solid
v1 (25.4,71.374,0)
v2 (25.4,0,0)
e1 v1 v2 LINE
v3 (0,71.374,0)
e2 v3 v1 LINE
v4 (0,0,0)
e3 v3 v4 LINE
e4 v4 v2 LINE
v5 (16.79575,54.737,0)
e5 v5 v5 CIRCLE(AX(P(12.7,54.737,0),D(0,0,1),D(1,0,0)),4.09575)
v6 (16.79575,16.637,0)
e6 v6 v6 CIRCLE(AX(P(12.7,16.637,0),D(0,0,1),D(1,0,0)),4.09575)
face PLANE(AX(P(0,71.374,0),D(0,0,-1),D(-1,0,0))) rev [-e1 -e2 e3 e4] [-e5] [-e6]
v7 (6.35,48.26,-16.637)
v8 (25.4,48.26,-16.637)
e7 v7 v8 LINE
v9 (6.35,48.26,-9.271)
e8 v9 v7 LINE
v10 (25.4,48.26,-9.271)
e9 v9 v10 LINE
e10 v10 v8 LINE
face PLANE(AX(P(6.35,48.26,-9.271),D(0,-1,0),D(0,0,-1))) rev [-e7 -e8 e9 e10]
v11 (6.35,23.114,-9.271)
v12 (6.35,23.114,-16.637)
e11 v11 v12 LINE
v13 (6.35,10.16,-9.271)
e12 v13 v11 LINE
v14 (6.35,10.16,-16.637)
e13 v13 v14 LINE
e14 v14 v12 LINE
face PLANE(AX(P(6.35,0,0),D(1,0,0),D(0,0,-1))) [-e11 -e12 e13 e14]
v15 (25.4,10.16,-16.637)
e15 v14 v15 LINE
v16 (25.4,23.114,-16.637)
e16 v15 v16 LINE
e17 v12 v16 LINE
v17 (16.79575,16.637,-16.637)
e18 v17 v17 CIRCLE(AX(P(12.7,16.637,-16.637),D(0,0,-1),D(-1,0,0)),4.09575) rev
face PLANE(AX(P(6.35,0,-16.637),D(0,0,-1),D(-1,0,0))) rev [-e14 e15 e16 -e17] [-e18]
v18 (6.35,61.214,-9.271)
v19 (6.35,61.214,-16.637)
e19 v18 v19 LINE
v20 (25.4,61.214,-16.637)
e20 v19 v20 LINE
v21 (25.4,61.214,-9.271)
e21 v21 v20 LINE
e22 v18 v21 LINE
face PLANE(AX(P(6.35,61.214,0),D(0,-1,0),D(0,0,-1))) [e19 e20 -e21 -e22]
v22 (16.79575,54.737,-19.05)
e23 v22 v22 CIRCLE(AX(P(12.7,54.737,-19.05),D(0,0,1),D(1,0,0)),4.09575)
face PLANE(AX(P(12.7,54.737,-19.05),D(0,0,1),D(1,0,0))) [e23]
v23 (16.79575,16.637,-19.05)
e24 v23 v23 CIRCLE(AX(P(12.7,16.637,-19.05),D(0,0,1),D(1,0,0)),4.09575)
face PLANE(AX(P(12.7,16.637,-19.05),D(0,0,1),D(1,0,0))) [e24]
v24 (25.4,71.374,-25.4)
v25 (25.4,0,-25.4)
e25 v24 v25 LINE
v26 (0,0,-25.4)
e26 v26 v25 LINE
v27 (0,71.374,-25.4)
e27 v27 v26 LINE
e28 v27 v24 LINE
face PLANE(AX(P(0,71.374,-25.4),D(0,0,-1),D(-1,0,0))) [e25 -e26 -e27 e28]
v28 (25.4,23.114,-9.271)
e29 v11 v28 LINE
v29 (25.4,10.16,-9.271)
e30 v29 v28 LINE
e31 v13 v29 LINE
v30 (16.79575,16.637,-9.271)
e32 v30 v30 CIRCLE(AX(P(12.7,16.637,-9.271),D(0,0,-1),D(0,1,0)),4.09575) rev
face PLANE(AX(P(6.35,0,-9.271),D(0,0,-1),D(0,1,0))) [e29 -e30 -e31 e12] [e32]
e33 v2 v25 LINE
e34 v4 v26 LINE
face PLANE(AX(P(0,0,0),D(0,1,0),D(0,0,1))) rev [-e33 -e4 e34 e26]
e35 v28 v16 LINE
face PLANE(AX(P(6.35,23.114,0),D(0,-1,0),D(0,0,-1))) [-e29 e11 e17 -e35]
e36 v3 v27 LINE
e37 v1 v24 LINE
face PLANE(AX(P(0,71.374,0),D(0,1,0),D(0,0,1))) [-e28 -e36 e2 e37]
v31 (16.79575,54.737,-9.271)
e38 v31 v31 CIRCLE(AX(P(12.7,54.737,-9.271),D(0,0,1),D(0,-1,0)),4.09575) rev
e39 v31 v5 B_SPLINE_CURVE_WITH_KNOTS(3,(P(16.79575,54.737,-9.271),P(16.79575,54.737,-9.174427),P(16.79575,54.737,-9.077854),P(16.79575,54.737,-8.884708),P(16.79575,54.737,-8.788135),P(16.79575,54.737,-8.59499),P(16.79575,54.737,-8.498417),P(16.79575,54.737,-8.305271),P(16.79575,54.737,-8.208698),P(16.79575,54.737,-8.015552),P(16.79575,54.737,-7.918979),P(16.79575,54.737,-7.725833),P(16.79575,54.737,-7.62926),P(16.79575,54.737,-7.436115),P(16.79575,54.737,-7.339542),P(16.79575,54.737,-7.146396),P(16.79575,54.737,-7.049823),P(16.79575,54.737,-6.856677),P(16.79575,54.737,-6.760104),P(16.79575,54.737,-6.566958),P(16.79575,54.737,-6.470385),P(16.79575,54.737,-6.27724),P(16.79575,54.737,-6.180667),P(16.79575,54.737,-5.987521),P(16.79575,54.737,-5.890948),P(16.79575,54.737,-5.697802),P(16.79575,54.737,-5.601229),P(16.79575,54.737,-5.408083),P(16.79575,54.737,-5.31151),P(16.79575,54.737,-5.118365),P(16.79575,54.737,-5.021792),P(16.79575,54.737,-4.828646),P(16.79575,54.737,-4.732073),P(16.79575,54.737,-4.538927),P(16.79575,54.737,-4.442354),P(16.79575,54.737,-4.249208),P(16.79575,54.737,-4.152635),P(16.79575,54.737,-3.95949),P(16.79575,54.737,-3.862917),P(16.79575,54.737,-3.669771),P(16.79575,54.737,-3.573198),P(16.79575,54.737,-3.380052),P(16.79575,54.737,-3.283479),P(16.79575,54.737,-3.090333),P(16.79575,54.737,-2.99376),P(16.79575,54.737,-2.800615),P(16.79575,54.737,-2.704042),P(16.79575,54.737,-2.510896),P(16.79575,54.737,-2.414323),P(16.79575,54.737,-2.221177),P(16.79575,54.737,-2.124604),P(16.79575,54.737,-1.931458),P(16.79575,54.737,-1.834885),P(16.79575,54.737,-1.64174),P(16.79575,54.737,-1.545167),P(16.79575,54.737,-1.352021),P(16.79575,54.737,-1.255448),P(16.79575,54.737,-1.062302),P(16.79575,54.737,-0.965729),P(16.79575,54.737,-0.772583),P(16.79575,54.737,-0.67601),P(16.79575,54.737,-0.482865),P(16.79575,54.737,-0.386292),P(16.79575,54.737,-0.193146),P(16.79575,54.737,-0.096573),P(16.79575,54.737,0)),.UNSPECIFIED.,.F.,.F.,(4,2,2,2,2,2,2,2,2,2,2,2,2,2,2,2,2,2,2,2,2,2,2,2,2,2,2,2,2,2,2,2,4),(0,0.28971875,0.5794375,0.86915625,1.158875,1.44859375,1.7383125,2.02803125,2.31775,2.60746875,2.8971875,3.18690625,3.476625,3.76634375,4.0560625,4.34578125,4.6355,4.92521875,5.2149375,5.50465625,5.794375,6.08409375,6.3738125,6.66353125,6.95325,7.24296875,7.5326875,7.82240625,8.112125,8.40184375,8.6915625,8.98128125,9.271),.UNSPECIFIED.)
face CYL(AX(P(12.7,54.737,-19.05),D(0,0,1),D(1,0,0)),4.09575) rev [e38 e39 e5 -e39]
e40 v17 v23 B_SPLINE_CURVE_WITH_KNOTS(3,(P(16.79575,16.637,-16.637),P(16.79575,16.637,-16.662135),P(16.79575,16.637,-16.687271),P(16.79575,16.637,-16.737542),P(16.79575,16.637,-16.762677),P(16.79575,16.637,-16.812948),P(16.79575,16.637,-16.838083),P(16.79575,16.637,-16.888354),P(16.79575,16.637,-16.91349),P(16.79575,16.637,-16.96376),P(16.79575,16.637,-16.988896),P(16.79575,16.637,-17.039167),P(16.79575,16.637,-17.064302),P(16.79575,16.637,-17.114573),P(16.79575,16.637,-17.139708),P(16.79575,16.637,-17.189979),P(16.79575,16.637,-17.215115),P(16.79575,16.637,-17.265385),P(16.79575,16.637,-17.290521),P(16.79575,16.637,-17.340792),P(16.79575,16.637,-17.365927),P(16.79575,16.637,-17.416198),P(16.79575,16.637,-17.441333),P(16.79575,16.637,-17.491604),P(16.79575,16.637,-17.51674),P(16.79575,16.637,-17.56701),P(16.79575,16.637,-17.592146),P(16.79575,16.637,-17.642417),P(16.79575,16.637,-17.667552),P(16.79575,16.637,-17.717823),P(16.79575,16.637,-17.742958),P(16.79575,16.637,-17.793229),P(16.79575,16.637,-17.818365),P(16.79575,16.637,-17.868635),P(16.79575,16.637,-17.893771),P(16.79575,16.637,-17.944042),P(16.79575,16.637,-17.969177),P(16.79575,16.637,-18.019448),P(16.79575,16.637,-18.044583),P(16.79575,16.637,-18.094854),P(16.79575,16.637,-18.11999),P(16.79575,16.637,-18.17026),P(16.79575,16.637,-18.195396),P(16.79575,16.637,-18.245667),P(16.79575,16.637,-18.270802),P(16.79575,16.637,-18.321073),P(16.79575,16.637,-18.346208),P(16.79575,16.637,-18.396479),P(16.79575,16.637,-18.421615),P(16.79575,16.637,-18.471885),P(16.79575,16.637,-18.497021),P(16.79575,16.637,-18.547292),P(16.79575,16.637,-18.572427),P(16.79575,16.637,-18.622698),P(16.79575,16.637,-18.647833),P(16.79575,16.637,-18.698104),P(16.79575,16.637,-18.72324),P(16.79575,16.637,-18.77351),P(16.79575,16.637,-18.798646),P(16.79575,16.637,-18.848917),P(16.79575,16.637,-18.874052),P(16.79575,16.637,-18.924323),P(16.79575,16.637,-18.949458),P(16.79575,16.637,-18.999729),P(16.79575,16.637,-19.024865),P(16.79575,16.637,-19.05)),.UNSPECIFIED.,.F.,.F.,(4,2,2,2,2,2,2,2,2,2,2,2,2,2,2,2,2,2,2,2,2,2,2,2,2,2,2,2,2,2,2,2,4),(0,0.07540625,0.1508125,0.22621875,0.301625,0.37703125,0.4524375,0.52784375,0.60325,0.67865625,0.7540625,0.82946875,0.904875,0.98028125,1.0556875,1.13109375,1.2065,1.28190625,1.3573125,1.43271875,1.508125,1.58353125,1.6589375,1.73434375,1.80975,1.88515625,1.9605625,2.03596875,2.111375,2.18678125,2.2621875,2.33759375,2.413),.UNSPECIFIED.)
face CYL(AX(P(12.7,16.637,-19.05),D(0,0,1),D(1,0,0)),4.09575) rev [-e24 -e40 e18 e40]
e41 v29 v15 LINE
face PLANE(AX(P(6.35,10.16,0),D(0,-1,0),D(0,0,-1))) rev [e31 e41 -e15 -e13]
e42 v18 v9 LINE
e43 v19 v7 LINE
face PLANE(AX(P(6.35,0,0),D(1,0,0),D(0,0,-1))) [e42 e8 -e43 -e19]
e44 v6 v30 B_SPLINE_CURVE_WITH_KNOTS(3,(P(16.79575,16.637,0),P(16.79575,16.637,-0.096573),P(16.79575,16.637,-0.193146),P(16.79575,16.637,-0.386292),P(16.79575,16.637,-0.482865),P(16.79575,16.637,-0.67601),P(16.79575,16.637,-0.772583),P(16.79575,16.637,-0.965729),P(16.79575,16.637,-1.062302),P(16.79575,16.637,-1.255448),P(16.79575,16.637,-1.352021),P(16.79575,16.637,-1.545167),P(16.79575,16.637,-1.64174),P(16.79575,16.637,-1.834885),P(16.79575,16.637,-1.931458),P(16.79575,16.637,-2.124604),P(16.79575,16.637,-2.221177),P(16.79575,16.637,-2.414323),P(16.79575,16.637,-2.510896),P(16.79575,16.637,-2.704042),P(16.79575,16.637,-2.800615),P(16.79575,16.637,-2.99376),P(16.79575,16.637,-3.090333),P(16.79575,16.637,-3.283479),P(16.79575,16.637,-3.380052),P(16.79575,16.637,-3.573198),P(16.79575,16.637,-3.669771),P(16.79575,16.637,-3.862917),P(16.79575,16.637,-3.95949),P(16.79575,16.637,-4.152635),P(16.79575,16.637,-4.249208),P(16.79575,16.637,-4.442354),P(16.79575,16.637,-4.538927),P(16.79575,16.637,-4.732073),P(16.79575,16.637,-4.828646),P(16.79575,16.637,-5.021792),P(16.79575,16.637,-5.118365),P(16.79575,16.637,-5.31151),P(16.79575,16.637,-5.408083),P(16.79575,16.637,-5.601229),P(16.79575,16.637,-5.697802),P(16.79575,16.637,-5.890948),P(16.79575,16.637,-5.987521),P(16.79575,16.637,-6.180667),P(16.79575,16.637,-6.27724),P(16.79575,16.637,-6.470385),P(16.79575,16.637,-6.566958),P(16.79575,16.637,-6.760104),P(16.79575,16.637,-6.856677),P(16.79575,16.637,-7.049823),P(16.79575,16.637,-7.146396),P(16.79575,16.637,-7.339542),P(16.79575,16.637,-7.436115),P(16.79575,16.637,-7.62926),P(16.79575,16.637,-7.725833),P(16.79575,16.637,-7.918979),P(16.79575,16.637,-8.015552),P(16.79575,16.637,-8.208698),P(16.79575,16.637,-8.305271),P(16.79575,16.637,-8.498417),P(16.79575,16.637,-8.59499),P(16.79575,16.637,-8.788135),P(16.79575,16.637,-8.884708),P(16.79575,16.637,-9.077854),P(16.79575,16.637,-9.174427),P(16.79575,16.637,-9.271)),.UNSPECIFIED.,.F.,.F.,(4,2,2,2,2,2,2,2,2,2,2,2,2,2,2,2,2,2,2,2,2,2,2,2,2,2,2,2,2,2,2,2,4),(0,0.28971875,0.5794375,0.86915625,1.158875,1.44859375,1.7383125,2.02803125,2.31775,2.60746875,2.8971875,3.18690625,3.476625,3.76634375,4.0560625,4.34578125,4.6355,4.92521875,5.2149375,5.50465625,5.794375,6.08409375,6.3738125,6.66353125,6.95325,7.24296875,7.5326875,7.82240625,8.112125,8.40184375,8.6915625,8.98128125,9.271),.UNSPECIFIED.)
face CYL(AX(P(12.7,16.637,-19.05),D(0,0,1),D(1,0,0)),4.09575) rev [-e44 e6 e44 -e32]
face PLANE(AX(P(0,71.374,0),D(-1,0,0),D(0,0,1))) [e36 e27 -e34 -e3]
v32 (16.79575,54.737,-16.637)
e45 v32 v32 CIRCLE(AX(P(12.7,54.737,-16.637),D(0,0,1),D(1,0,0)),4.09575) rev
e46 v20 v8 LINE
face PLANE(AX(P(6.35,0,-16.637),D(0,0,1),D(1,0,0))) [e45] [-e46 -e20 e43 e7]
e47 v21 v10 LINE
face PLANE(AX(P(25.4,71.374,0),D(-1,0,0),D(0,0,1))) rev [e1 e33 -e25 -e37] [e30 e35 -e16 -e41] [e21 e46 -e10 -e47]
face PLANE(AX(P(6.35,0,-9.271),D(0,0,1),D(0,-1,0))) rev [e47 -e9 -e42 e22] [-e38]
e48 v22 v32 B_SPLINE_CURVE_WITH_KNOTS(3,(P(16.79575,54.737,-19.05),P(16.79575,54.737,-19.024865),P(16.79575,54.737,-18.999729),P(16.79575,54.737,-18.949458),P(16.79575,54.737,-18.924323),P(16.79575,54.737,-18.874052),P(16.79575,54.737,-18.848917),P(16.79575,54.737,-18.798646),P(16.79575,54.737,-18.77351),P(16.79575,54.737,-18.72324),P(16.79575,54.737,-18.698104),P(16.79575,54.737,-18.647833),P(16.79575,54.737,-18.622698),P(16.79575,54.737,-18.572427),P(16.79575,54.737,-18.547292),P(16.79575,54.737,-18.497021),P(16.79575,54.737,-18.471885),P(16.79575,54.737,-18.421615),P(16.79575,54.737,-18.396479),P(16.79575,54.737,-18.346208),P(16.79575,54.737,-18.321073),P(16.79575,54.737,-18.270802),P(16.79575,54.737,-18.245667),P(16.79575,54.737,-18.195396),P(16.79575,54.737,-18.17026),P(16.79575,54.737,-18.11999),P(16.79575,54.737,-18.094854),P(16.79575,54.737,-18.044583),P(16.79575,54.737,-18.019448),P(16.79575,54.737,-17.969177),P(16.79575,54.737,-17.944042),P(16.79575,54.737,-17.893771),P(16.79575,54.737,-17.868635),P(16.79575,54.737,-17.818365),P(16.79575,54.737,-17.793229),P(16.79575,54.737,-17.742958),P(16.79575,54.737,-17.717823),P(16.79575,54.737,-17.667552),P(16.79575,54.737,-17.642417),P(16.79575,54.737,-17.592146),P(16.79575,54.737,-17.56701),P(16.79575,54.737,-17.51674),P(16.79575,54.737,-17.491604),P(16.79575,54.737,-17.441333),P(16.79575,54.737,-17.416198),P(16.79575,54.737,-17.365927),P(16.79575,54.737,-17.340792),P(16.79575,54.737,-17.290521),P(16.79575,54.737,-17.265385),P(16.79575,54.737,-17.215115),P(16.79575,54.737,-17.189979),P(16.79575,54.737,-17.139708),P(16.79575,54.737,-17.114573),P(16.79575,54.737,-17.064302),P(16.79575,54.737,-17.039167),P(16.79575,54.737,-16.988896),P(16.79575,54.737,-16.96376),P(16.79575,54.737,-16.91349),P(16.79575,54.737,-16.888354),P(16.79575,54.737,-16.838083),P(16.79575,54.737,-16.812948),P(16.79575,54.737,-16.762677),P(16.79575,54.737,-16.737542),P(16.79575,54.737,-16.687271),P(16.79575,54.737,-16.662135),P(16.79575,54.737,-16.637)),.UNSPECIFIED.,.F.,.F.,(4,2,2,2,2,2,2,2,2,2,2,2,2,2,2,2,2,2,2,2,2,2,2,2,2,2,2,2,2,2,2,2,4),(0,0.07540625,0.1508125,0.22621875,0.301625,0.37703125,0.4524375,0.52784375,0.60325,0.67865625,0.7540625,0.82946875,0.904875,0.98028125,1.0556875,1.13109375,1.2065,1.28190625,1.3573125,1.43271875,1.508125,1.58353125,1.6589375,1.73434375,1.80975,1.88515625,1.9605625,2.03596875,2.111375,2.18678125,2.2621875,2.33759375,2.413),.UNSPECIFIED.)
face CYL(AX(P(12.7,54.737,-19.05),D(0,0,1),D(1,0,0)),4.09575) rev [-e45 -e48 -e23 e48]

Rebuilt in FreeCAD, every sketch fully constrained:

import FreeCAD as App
import Part
import Sketcher
Q = App.Units.Quantity


def add_polygon(sketch, points):
    """Adds a closed chain of lines whose ends are joined by coincident constraints."""
    first, n = sketch.GeometryCount, len(points)
    for a, b in zip(points, points[1:] + points[:1]):
        sketch.addGeometry(Part.LineSegment(App.Vector(*a, 0), App.Vector(*b, 0)), False)
    for i in range(n):
        sketch.addConstraint(Sketcher.Constraint("Coincident", first + i, 2, first + (i + 1) % n, 1))

doc = App.newDocument("Part")
params = doc.addObject("Spreadsheet::Sheet", "Params")
for row, (alias, value) in enumerate([
    ("sketch1_width", "1 in"),
    ("pad1_length", "2.81 in"),
    ("pocket1_length", "0.75 in"),
    ("sketch3_width", "0.51 in"),
    ("sketch3_height", "0.29 in"),
    ("pocket2_length", "0.75 in"),
], start=1):
    params.set(f"A{row}", alias)
    params.set(f"B{row}", "=" + value)
    params.setAlias(f"B{row}", alias)

body = doc.addObject("PartDesign::Body", "Body")

# Sketch on XZ plane
sketch1 = body.newObject("Sketcher::SketchObject", "Sketch")
sketch1.AttachmentSupport = (doc.getObject("XZ_Plane"), [""])
sketch1.MapMode = "FlatFace"
add_polygon(sketch1, [(0, -25.4), (0, 0), (25.4, 0), (25.4, -25.4)])  # lines 0-3
sketch1.addConstraint([
    Sketcher.Constraint("Vertical", 0),
    Sketcher.Constraint("Horizontal", 1),
    Sketcher.Constraint("Vertical", 2),
    Sketcher.Constraint("Horizontal", 3),
    Sketcher.Constraint("Coincident", 0, 2, -1, 1),
    Sketcher.Constraint("Equal", 3, 0),
    Sketcher.Constraint("DistanceX", 1, 1, 1, 2, Q("1 in")),
])
sketch1.setExpression("Constraints[10]", "Params.sketch1_width")
pad1 = body.newObject("PartDesign::Pad", "Pad")
pad1.Profile = sketch1
pad1.setExpression("Length", "Params.pad1_length")
pad1.Reversed = True

# Sketch on XY plane
sketch2 = body.newObject("Sketcher::SketchObject", "Sketch001")
sketch2.AttachmentSupport = (doc.getObject("XY_Plane"), [""])
sketch2.MapMode = "FlatFace"
sketch2.addGeometry([
    Part.Circle(App.Vector(12.7, 54.737, 0), App.Vector(0, 0, 1), 4.09575),
    Part.Circle(App.Vector(12.7, 16.637, 0), App.Vector(0, 0, 1), 4.09575),
], False)
sketch2.addConstraint([
    Sketcher.Constraint("Equal", 0, 1),
    Sketcher.Constraint("Vertical", 0, 3, 1, 3),
    Sketcher.Constraint("Diameter", 0, Q("0.3225 in")),
    Sketcher.Constraint("DistanceX", -1, 1, 0, 3, Q("0.5 in")),
    Sketcher.Constraint("DistanceY", 1, 3, 0, 3, Q("1.5 in")),
    Sketcher.Constraint("DistanceY", -1, 1, 0, 3, Q("2.155 in")),
])
pocket1 = body.newObject("PartDesign::Pocket", "Pocket")
pocket1.Profile = sketch2
pocket1.setExpression("Length", "Params.pocket1_length")

# Sketch on YZ plane
sketch3 = body.newObject("Sketcher::SketchObject", "Sketch002")
sketch3.AttachmentSupport = (doc.getObject("YZ_Plane"), [""])
sketch3.MapMode = "FlatFace"
sketch3.AttachmentOffset = App.Placement(App.Vector(0, 0, 1 * 25.4), App.Rotation())
add_polygon(sketch3, [(61.214, -9.271), (48.26, -9.271), (48.26, -16.637), (61.214, -16.637)])  # lines 0-3
add_polygon(sketch3, [(23.114, -9.271), (10.16, -9.271), (10.16, -16.637), (23.114, -16.637)])  # lines 4-7
sketch3.addConstraint([
    Sketcher.Constraint("Horizontal", 0),
    Sketcher.Constraint("Vertical", 1),
    Sketcher.Constraint("Horizontal", 2),
    Sketcher.Constraint("Vertical", 3),
    Sketcher.Constraint("Horizontal", 4),
    Sketcher.Constraint("Vertical", 5),
    Sketcher.Constraint("Horizontal", 6),
    Sketcher.Constraint("Vertical", 7),
    Sketcher.Constraint("Horizontal", 3, 2, 4, 2),
    Sketcher.Constraint("Horizontal", 2, 2, 5, 2),
    Sketcher.Constraint("Equal", 2, 4),
    Sketcher.Constraint("DistanceX", 0, 2, 0, 1, Q("0.51 in")),
    Sketcher.Constraint("DistanceY", 1, 2, 1, 1, Q("0.29 in")),
    Sketcher.Constraint("DistanceX", -1, 1, 0, 2, Q("1.9 in")),
    Sketcher.Constraint("DistanceX", -1, 1, 4, 2, Q("0.4 in")),
    Sketcher.Constraint("DistanceY", 0, 2, -1, 1, Q("0.365 in")),
])
sketch3.setExpression("Constraints[19]", "Params.sketch3_width")
sketch3.setExpression("Constraints[20]", "Params.sketch3_height")
pocket2 = body.newObject("PartDesign::Pocket", "Pocket001")
pocket2.Profile = sketch3
pocket2.setExpression("Length", "Params.pocket2_length")

doc.recompute()
